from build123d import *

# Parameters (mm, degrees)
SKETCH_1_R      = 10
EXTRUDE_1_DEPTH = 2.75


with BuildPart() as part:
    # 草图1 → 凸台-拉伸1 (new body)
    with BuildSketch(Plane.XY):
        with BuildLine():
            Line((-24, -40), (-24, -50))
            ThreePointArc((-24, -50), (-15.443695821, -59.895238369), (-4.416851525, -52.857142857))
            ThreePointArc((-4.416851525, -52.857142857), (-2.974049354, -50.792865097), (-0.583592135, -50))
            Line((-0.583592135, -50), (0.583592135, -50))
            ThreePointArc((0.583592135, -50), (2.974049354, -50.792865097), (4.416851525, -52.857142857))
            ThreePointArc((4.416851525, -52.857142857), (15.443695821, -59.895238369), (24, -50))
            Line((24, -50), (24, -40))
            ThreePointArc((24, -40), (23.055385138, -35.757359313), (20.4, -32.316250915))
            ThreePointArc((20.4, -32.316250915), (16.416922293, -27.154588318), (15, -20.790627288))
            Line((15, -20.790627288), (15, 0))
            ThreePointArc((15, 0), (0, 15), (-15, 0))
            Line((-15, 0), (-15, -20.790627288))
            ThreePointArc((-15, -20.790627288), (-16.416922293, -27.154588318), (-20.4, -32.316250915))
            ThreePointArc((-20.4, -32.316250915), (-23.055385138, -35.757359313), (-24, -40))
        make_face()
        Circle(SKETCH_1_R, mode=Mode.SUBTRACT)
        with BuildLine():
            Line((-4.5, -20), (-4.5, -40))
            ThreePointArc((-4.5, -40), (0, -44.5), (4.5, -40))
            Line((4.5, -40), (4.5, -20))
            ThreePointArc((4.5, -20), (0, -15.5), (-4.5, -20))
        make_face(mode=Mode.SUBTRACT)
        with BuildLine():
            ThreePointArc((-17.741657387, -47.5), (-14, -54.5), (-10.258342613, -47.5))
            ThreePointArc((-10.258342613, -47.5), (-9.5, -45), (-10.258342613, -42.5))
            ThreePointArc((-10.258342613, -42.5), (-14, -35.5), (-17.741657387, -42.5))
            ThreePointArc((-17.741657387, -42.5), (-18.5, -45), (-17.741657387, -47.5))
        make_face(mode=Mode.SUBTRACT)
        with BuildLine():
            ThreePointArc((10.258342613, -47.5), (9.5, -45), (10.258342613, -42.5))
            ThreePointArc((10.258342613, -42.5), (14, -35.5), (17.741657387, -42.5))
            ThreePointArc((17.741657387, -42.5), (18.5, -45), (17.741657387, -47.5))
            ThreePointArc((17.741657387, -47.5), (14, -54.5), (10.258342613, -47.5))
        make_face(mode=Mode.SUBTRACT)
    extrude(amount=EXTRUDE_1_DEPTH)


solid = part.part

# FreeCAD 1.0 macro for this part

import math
import FreeCAD as App
import Part
import Sketcher
Q = App.Units.Quantity

doc = App.newDocument("Part")
body = doc.addObject("PartDesign::Body", "Body")

# Sketch on XY plane
sketch1 = doc.addObject("Sketcher::SketchObject", "Sketch")
body.addObject(sketch1)
sketch1.AttachmentSupport = (doc.XY_Plane, [""])
sketch1.MapMode = "FlatFace"
sketch1.addGeometry(Part.LineSegment(App.Vector(-24, -40, 0), App.Vector(-24, -50, 0)), False)
sketch1.addGeometry(Part.ArcOfCircle(Part.Circle(App.Vector(-14, -50, 0), App.Vector(0, 0, 1), 10), math.radians(180), math.radians(343)), False)
sketch1.addGeometry(Part.ArcOfCircle(Part.Circle(App.Vector(-0.6, -54, 0), App.Vector(0, 0, 1), 4), math.radians(90), math.radians(163)), False)
sketch1.addGeometry(Part.LineSegment(App.Vector(-0.6, -50, 0), App.Vector(0.6, -50, 0)), False)
sketch1.addGeometry(Part.ArcOfCircle(Part.Circle(App.Vector(0.6, -54, 0), App.Vector(0, 0, 1), 4), math.radians(17), math.radians(90)), False)
sketch1.addGeometry(Part.ArcOfCircle(Part.Circle(App.Vector(14, -50, 0), App.Vector(0, 0, 1), 10), math.radians(-163), math.radians(0)), False)
sketch1.addGeometry(Part.LineSegment(App.Vector(24, -50, 0), App.Vector(24, -40, 0)), False)
sketch1.addGeometry(Part.ArcOfCircle(Part.Circle(App.Vector(14, -40, 0), App.Vector(0, 0, 1), 10), math.radians(0), math.radians(50)), False)
sketch1.addGeometry(Part.ArcOfCircle(Part.Circle(App.Vector(30, -20.8, 0), App.Vector(0, 0, 1), 15), math.radians(-180), math.radians(-130)), False)
sketch1.addGeometry(Part.LineSegment(App.Vector(15, -20.8, 0), App.Vector(15, 0, 0)), False)
sketch1.addGeometry(Part.ArcOfCircle(Part.Circle(App.Vector(0, 0, 0), App.Vector(0, 0, 1), 15), math.radians(0), math.radians(180)), False)
sketch1.addGeometry(Part.LineSegment(App.Vector(-15, 0, 0), App.Vector(-15, -20.8, 0)), False)
sketch1.addGeometry(Part.ArcOfCircle(Part.Circle(App.Vector(-30, -20.8, 0), App.Vector(0, 0, 1), 15), math.radians(-50), math.radians(0)), False)
sketch1.addGeometry(Part.ArcOfCircle(Part.Circle(App.Vector(-14, -40, 0), App.Vector(0, 0, 1), 10), math.radians(130), math.radians(180)), False)
sketch1.addGeometry(Part.ArcOfCircle(Part.Circle(App.Vector(-14, -50, 0), App.Vector(0, 0, 1), 4.5), math.radians(146), math.radians(394)), False)
sketch1.addGeometry(Part.ArcOfCircle(Part.Circle(App.Vector(-14, -45, 0), App.Vector(0, 0, 1), 4.5), math.radians(146), math.radians(214)), False)
sketch1.addGeometry(Part.ArcOfCircle(Part.Circle(App.Vector(-14, -40, 0), App.Vector(0, 0, 1), 4.5), math.radians(-34), math.radians(214)), False)
sketch1.addGeometry(Part.ArcOfCircle(Part.Circle(App.Vector(-14, -45, 0), App.Vector(0, 0, 1), 4.5), math.radians(-34), math.radians(34)), False)
sketch1.addGeometry(Part.ArcOfCircle(Part.Circle(App.Vector(14, -50, 0), App.Vector(0, 0, 1), 4.5), math.radians(146), math.radians(394)), False)
sketch1.addGeometry(Part.ArcOfCircle(Part.Circle(App.Vector(14, -45, 0), App.Vector(0, 0, 1), 4.5), math.radians(146), math.radians(214)), False)
sketch1.addGeometry(Part.ArcOfCircle(Part.Circle(App.Vector(14, -40, 0), App.Vector(0, 0, 1), 4.5), math.radians(-34), math.radians(214)), False)
sketch1.addGeometry(Part.ArcOfCircle(Part.Circle(App.Vector(14, -45, 0), App.Vector(0, 0, 1), 4.5), math.radians(-34), math.radians(34)), False)
sketch1.addGeometry(Part.LineSegment(App.Vector(-4.5, -40, 0), App.Vector(-4.5, -20, 0)), False)
sketch1.addGeometry(Part.ArcOfCircle(Part.Circle(App.Vector(0, -20, 0), App.Vector(0, 0, 1), 4.5), math.radians(0), math.radians(180)), False)
sketch1.addGeometry(Part.LineSegment(App.Vector(4.5, -20, 0), App.Vector(4.5, -40, 0)), False)
sketch1.addGeometry(Part.ArcOfCircle(Part.Circle(App.Vector(0, -40, 0), App.Vector(0, 0, 1), 4.5), math.radians(180), math.radians(360)), False)
sketch1.addGeometry(Part.Circle(App.Vector(0, 0, 0), App.Vector(0, 0, 1), 10), False)
sketch1.addConstraint(Sketcher.Constraint("Tangent", 0, 2, 1, 1))
sketch1.addConstraint(Sketcher.Constraint("Tangent", 1, 2, 2, 2))
sketch1.addConstraint(Sketcher.Constraint("Tangent", 2, 1, 3, 1))
sketch1.addConstraint(Sketcher.Constraint("Tangent", 3, 2, 4, 2))
sketch1.addConstraint(Sketcher.Constraint("Tangent", 4, 1, 5, 1))
sketch1.addConstraint(Sketcher.Constraint("Tangent", 5, 2, 6, 1))
sketch1.addConstraint(Sketcher.Constraint("Tangent", 6, 2, 7, 1))
sketch1.addConstraint(Sketcher.Constraint("Tangent", 7, 2, 8, 2))
sketch1.addConstraint(Sketcher.Constraint("Tangent", 8, 1, 9, 1))
sketch1.addConstraint(Sketcher.Constraint("Tangent", 9, 2, 10, 1))
sketch1.addConstraint(Sketcher.Constraint("Tangent", 10, 2, 11, 1))
sketch1.addConstraint(Sketcher.Constraint("Tangent", 11, 2, 12, 2))
sketch1.addConstraint(Sketcher.Constraint("Tangent", 12, 1, 13, 1))
sketch1.addConstraint(Sketcher.Constraint("Tangent", 13, 2, 0, 1))
sketch1.addConstraint(Sketcher.Constraint("Coincident", 14, 1, 15, 2))
sketch1.addConstraint(Sketcher.Constraint("Coincident", 15, 1, 16, 2))
sketch1.addConstraint(Sketcher.Constraint("Coincident", 16, 1, 17, 2))
sketch1.addConstraint(Sketcher.Constraint("Coincident", 17, 1, 14, 2))
sketch1.addConstraint(Sketcher.Constraint("Coincident", 18, 1, 19, 2))
sketch1.addConstraint(Sketcher.Constraint("Coincident", 19, 1, 20, 2))
sketch1.addConstraint(Sketcher.Constraint("Coincident", 20, 1, 21, 2))
sketch1.addConstraint(Sketcher.Constraint("Coincident", 21, 1, 18, 2))
sketch1.addConstraint(Sketcher.Constraint("Tangent", 22, 2, 23, 2))
sketch1.addConstraint(Sketcher.Constraint("Tangent", 23, 1, 24, 1))
sketch1.addConstraint(Sketcher.Constraint("Tangent", 24, 2, 25, 2))
sketch1.addConstraint(Sketcher.Constraint("Tangent", 25, 1, 22, 1))
sketch1.addConstraint(Sketcher.Constraint("Vertical", 0))
sketch1.addConstraint(Sketcher.Constraint("Horizontal", 3))
sketch1.addConstraint(Sketcher.Constraint("Vertical", 6))
sketch1.addConstraint(Sketcher.Constraint("Vertical", 9))
sketch1.addConstraint(Sketcher.Constraint("Vertical", 11))
sketch1.addConstraint(Sketcher.Constraint("Vertical", 22))
sketch1.addConstraint(Sketcher.Constraint("Vertical", 24))
sketch1.addConstraint(Sketcher.Constraint("Coincident", 10, 3, -1, 1))
sketch1.addConstraint(Sketcher.Constraint("Coincident", 26, 3, -1, 1))
sketch1.addConstraint(Sketcher.Constraint("Coincident", 14, 3, 1, 3))
sketch1.addConstraint(Sketcher.Constraint("Coincident", 16, 3, 13, 3))
sketch1.addConstraint(Sketcher.Constraint("Coincident", 17, 3, 15, 3))
sketch1.addConstraint(Sketcher.Constraint("Coincident", 18, 3, 5, 3))
sketch1.addConstraint(Sketcher.Constraint("Coincident", 20, 3, 7, 3))
sketch1.addConstraint(Sketcher.Constraint("Coincident", 21, 3, 19, 3))
sketch1.addConstraint(Sketcher.Constraint("Equal", 2, 4))
sketch1.addConstraint(Sketcher.Constraint("Equal", 1, 5))
sketch1.addConstraint(Sketcher.Constraint("Equal", 5, 7))
sketch1.addConstraint(Sketcher.Constraint("Equal", 8, 10))
sketch1.addConstraint(Sketcher.Constraint("Equal", 10, 12))
sketch1.addConstraint(Sketcher.Constraint("Equal", 7, 13))
sketch1.addConstraint(Sketcher.Constraint("Equal", 14, 15))
sketch1.addConstraint(Sketcher.Constraint("Equal", 15, 16))
sketch1.addConstraint(Sketcher.Constraint("Equal", 16, 17))
sketch1.addConstraint(Sketcher.Constraint("Equal", 17, 18))
sketch1.addConstraint(Sketcher.Constraint("Equal", 18, 19))
sketch1.addConstraint(Sketcher.Constraint("Equal", 19, 20))
sketch1.addConstraint(Sketcher.Constraint("Equal", 20, 21))
sketch1.addConstraint(Sketcher.Constraint("Equal", 21, 23))
sketch1.addConstraint(Sketcher.Constraint("Equal", 13, 26))
sketch1.addConstraint(Sketcher.Constraint("Symmetric", 1, 3, 5, 3, -2))
sketch1.addConstraint(Sketcher.Constraint("Symmetric", 15, 3, 19, 3, -2))
sketch1.addConstraint(Sketcher.Constraint("PointOnObject", 23, 3, -2))
sketch1.addConstraint(Sketcher.Constraint("Horizontal", 8, 3, 12, 3))
sketch1.addConstraint(Sketcher.Constraint("Horizontal", 20, 3, 25, 3))
sketch1.addConstraint(Sketcher.Constraint("Horizontal", 0, 2, 2, 1))
sketch1.addConstraint(Sketcher.Constraint("Horizontal", 15, 1, 16, 1))
sketch1.addConstraint(Sketcher.Constraint("Vertical", 14, 1, 15, 1))
sketch1.addConstraint(Sketcher.Constraint("Diameter", 26, Q("20 mm")))
sketch1.addConstraint(Sketcher.Constraint("Radius", 2, Q("4 mm")))
sketch1.addConstraint(Sketcher.Constraint("Radius", 8, Q("15 mm")))
sketch1.addConstraint(Sketcher.Constraint("Radius", 14, Q("4.5 mm")))
sketch1.addConstraint(Sketcher.Constraint("DistanceY", 0, 2, 0, 1, Q("10 mm")))
sketch1.addConstraint(Sketcher.Constraint("DistanceY", 22, 1, 22, 2, Q("20 mm")))
sketch1.addConstraint(Sketcher.Constraint("DistanceX", 1, 3, -1, 1, Q("14 mm")))
sketch1.addConstraint(Sketcher.Constraint("DistanceY", 1, 3, -1, 1, Q("50 mm")))
pad1 = doc.addObject("PartDesign::Pad", "Pad")
body.addObject(pad1)
pad1.Profile = sketch1
pad1.Length = 2.75

doc.recompute()
